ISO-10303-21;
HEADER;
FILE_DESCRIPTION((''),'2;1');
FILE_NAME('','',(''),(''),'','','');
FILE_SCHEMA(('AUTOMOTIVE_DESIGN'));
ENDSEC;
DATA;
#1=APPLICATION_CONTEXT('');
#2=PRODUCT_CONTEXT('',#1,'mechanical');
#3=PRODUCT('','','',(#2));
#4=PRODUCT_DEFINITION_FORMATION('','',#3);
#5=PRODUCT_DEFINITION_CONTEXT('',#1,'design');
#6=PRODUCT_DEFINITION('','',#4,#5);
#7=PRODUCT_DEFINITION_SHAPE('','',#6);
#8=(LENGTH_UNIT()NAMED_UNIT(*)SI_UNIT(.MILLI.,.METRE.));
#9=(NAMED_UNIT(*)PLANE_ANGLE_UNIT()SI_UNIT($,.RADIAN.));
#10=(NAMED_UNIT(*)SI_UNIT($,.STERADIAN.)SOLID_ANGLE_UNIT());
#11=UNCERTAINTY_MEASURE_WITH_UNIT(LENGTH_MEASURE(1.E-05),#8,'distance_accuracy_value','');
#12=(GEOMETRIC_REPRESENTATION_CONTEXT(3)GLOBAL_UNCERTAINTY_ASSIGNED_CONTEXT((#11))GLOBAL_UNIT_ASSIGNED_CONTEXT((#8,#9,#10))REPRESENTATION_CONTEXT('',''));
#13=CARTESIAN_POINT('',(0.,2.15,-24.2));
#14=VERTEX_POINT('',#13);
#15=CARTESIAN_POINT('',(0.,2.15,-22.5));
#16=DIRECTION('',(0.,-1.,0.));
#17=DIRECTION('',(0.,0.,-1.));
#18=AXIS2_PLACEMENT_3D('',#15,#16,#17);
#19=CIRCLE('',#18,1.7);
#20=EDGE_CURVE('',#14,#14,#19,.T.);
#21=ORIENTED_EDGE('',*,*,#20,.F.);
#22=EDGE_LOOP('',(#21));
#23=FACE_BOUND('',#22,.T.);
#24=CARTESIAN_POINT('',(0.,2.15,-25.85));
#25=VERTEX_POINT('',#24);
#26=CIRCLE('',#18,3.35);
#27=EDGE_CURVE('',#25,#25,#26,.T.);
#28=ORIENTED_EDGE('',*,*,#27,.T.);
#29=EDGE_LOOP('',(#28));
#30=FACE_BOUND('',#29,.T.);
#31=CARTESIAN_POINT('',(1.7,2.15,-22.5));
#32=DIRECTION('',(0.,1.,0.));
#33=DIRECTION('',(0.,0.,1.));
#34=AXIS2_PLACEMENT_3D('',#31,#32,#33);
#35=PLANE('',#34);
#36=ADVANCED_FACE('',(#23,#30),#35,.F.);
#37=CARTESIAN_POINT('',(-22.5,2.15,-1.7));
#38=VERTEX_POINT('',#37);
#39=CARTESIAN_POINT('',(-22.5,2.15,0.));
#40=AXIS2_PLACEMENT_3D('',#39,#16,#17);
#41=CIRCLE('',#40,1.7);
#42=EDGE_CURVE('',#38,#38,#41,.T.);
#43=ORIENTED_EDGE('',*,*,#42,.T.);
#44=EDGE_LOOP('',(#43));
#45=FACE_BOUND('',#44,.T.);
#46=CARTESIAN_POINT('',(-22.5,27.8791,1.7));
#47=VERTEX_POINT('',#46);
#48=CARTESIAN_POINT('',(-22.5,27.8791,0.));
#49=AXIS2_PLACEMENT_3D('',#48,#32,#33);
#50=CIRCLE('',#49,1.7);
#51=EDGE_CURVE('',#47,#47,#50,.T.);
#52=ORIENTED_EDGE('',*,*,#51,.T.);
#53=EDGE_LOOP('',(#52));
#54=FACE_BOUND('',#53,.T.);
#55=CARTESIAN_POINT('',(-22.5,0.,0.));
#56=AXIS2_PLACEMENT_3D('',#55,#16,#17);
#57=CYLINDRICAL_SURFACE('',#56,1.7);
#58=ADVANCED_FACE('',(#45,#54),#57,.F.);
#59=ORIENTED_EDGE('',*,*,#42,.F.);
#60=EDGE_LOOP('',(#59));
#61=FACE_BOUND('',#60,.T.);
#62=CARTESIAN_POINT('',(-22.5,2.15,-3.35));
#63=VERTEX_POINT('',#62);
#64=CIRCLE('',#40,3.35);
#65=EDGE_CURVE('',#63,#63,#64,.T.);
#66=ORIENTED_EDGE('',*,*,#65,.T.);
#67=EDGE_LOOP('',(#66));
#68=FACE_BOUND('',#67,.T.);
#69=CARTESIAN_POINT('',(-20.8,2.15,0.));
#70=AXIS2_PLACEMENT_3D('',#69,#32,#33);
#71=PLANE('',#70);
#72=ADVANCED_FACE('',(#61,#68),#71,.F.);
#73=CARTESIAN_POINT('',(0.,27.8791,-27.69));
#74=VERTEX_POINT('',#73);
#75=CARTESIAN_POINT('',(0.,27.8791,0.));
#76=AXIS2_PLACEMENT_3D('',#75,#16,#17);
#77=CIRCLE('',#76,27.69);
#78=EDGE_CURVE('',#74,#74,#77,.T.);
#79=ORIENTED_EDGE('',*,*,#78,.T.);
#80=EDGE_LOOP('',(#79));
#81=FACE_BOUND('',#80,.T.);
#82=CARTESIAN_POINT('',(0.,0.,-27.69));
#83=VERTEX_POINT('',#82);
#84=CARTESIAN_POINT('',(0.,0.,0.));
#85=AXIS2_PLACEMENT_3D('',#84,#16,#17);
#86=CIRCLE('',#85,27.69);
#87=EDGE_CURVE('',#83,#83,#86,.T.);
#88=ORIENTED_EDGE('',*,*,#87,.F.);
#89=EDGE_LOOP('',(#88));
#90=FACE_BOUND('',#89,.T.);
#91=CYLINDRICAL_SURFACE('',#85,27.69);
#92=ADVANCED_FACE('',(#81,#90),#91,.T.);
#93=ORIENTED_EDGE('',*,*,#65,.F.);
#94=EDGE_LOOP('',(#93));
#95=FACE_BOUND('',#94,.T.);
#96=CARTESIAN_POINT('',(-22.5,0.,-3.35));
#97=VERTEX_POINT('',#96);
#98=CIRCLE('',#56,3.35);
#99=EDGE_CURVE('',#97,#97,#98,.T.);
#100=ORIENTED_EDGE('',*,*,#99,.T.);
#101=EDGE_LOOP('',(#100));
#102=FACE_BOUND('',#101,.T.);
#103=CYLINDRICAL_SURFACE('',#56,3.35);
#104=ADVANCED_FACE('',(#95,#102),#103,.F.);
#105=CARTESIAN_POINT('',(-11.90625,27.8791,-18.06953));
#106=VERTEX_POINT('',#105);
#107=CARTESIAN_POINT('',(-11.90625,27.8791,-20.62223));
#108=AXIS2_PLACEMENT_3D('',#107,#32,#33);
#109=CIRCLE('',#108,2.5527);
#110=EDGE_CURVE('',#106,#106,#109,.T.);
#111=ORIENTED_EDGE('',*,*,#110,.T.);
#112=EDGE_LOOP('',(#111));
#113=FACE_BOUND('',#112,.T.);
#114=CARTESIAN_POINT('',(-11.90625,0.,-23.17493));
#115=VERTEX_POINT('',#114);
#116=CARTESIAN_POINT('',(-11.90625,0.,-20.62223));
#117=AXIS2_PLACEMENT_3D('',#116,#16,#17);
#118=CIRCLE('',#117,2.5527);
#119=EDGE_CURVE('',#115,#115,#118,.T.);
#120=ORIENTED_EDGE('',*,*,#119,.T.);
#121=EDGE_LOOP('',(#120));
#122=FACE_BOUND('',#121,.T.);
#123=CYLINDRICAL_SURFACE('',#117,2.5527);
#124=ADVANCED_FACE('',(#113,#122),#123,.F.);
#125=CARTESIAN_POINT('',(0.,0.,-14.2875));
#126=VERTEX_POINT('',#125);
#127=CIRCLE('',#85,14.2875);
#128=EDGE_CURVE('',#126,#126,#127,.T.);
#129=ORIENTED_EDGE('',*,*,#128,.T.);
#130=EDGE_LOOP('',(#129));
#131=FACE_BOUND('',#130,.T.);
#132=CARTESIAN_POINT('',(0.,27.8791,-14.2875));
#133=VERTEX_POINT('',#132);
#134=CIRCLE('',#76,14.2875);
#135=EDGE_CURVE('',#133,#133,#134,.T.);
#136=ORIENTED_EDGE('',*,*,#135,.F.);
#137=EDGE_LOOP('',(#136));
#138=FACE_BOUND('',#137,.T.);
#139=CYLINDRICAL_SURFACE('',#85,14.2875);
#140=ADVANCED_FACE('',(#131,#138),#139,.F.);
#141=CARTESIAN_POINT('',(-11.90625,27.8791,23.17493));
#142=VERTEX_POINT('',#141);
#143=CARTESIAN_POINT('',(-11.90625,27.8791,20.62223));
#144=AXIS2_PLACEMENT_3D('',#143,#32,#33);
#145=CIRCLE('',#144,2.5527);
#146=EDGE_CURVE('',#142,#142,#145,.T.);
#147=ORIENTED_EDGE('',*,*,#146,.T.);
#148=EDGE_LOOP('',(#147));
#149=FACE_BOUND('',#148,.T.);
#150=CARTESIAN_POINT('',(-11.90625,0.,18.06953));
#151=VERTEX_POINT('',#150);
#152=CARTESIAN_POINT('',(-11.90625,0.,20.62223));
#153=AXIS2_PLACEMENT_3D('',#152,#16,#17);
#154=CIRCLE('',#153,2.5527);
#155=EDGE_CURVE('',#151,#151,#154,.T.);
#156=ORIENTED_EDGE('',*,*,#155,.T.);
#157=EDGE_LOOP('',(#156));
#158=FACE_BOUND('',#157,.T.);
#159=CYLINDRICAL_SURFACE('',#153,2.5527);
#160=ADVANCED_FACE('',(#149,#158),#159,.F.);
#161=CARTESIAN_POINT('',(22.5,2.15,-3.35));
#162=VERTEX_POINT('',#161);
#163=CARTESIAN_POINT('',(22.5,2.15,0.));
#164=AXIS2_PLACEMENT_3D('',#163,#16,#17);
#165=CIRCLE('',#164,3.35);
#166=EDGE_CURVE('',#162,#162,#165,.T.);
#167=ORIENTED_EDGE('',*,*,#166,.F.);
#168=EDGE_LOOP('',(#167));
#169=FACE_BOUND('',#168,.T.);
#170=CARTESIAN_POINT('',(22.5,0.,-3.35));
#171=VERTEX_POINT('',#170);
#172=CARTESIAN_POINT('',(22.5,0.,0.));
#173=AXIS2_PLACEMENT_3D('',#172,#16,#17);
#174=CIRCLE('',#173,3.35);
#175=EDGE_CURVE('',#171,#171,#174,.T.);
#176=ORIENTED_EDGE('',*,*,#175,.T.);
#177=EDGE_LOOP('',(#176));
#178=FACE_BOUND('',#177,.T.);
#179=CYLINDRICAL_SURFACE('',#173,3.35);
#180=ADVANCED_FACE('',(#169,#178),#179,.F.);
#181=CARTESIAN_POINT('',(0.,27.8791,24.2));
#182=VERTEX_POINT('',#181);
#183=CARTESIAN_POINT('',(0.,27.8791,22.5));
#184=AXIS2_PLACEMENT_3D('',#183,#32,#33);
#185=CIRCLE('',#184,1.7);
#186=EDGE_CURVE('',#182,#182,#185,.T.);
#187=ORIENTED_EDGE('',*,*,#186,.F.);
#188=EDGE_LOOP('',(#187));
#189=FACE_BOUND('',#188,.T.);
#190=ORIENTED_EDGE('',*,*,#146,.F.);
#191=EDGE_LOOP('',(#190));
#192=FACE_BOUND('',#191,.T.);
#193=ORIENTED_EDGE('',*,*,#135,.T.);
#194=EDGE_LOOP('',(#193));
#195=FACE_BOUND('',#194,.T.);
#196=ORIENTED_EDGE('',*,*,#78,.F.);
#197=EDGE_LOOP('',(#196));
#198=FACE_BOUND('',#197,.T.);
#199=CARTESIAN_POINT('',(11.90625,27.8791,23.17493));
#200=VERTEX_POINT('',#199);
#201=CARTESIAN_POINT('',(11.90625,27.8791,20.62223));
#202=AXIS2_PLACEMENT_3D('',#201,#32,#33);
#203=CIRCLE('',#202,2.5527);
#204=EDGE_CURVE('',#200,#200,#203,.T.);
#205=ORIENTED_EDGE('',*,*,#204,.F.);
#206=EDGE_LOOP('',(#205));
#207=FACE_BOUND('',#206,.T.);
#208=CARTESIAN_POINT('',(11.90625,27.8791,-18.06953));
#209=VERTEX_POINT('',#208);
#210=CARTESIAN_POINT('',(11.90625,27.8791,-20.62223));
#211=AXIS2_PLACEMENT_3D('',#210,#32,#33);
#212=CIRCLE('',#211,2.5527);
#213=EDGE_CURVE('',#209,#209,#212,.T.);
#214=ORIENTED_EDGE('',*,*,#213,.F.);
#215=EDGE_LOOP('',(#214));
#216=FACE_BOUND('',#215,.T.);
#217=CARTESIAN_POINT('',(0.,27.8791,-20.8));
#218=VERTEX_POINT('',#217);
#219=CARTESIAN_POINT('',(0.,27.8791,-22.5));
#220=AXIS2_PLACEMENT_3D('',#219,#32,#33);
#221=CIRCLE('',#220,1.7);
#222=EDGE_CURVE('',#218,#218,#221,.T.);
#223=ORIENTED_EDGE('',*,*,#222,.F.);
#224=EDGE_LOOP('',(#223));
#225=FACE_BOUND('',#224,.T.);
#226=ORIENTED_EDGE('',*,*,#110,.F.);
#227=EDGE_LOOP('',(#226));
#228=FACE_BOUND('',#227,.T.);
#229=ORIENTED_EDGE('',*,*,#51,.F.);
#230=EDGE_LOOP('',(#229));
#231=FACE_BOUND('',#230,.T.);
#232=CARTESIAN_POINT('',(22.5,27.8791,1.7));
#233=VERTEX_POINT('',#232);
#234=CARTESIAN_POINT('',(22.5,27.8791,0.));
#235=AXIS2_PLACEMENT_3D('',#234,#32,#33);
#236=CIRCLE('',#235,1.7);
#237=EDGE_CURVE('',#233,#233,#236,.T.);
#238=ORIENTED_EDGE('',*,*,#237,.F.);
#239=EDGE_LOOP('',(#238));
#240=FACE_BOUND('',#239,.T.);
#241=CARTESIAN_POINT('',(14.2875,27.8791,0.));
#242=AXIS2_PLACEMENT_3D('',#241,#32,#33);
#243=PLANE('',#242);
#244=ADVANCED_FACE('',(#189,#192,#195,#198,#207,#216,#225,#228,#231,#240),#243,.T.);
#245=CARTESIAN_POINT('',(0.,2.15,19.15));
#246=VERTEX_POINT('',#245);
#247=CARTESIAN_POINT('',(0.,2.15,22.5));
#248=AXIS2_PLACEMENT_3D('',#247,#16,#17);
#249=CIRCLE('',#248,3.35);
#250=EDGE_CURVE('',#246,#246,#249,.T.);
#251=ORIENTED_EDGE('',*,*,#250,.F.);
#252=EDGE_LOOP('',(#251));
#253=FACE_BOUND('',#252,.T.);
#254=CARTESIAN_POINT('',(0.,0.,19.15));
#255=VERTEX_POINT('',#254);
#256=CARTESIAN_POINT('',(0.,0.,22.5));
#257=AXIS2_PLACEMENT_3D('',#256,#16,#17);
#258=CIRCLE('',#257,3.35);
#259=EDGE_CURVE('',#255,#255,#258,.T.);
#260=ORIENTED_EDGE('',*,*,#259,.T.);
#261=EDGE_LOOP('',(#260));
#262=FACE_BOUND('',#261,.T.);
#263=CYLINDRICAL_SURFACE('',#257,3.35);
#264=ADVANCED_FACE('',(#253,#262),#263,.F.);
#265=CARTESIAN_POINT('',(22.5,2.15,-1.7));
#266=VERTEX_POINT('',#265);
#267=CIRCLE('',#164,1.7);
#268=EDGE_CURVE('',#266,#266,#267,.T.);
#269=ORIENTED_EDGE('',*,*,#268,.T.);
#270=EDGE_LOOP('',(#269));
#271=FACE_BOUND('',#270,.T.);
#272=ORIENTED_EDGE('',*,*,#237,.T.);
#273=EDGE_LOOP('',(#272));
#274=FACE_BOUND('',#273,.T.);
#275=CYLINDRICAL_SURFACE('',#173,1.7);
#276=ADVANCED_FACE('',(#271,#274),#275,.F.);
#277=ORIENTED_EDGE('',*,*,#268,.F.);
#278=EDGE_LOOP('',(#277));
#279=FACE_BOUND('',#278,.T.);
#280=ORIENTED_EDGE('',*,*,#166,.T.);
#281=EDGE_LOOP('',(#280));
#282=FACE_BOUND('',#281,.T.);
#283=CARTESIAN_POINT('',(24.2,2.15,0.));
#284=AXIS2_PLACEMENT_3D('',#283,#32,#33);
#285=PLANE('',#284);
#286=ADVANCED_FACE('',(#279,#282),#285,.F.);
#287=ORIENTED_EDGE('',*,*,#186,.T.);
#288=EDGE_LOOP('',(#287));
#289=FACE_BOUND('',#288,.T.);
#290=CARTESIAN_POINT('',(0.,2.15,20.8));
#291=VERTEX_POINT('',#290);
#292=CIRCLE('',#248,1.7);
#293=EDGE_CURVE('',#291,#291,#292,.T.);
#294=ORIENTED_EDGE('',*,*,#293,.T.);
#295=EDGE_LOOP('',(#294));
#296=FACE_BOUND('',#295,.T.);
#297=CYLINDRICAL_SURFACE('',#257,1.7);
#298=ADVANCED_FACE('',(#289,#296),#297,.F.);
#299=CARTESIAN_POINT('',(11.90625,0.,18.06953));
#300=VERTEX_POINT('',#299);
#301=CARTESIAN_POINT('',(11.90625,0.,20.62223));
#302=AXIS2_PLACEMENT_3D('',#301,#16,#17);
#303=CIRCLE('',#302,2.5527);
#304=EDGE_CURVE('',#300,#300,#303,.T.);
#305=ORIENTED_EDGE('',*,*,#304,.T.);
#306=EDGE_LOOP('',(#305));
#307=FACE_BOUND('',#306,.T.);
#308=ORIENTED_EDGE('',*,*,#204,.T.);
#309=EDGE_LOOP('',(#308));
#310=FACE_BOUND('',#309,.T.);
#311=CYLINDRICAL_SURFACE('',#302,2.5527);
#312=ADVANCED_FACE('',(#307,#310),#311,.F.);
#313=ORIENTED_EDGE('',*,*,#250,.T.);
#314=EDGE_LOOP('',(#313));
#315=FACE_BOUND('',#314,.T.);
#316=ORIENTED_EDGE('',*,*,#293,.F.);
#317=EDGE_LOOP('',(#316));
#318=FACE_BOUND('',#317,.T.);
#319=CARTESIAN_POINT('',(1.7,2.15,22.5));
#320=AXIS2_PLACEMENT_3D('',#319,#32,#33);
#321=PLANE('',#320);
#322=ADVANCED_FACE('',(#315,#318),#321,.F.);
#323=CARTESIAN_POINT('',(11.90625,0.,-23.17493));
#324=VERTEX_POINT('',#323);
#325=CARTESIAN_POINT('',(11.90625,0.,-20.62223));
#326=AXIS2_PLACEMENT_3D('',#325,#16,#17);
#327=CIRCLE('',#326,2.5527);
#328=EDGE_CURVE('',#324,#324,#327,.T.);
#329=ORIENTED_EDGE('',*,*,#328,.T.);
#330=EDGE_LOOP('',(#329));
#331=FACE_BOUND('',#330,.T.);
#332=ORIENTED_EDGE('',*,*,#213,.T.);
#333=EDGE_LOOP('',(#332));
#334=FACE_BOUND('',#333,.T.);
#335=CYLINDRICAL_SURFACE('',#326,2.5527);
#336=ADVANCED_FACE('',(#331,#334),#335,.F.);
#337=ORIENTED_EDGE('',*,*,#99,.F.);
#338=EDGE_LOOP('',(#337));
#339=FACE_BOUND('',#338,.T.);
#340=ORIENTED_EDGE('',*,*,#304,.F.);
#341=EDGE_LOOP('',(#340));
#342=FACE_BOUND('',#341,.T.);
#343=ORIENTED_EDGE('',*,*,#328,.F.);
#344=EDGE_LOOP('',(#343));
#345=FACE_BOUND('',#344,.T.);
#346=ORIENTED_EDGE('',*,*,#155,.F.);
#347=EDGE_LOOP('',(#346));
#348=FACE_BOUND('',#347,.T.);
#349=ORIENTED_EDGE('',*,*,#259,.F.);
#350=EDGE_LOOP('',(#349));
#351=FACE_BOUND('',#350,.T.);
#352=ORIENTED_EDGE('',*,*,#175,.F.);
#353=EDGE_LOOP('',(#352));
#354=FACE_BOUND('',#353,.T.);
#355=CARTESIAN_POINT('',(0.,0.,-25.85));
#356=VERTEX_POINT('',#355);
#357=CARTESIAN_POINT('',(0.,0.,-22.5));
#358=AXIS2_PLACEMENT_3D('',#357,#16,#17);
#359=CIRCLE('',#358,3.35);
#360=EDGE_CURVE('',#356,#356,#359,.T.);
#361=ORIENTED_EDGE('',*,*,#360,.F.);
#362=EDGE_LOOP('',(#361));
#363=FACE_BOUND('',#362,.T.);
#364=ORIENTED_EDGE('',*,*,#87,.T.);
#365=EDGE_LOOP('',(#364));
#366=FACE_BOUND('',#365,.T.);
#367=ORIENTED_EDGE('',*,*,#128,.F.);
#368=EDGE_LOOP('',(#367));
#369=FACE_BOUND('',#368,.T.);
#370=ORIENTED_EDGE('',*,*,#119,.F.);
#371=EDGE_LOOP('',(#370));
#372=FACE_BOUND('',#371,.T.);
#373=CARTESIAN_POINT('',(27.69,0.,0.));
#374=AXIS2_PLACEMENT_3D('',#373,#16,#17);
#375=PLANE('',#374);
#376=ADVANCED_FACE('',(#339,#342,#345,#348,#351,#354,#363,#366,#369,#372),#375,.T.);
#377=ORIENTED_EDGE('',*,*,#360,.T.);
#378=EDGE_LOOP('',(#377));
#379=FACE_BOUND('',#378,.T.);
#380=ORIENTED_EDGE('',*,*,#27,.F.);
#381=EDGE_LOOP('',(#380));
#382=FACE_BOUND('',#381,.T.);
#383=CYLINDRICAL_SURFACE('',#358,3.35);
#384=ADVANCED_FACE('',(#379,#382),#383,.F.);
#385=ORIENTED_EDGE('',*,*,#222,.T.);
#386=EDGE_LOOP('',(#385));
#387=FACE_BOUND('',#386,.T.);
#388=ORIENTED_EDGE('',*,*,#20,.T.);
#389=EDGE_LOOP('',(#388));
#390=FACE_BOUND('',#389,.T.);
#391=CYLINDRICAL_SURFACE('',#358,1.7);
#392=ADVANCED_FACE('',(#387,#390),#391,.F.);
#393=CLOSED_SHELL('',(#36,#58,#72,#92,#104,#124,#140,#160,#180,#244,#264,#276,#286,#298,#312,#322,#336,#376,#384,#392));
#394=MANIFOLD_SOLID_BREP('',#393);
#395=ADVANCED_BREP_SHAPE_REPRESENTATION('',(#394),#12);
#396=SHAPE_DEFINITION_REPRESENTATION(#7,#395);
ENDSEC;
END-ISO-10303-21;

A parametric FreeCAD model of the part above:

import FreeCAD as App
import Part
import Sketcher

V = App.Vector

doc = App.newDocument("Part")
body = doc.addObject("PartDesign::Body", "Body")

sketch1 = body.newObject("Sketcher::SketchObject", "Sketch")
sketch1.AttachmentSupport = (doc.getObject("XY_Plane"), [""])
sketch1.MapMode = "FlatFace"
sketch1.addGeometry([
    Part.LineSegment(V(14, 28, 0), V(14, 0, 0)),
    Part.LineSegment(V(14, 0, 0), V(28, 0, 0)),
    Part.LineSegment(V(28, 0, 0), V(28, 28, 0)),
    Part.LineSegment(V(28, 28, 0), V(14, 28, 0)),
], False)
sketch1.addConstraint([
    Sketcher.Constraint("Coincident", 0, 2, 1, 1),
    Sketcher.Constraint("Coincident", 1, 2, 2, 1),
    Sketcher.Constraint("Coincident", 2, 2, 3, 1),
    Sketcher.Constraint("Coincident", 3, 2, 0, 1),
    Sketcher.Constraint("Vertical", 0),
    Sketcher.Constraint("Horizontal", 1),
    Sketcher.Constraint("Vertical", 2),
    Sketcher.Constraint("Horizontal", 3),
    Sketcher.Constraint("PointOnObject", 0, 2, -1),
    Sketcher.Constraint("DistanceX", -1, 1, 1, 2, 27.69),
    Sketcher.Constraint("DistanceX", 1, 1, 1, 2, 13.4025),
    Sketcher.Constraint("DistanceY", 0, 2, 0, 1, 27.8791),
])
revolution = body.newObject("PartDesign::Revolution", "Revolution")
revolution.Profile = sketch1
revolution.ReferenceAxis = (sketch1, ["V_Axis"])
revolution.Angle = 360

sketch2 = body.newObject("Sketcher::SketchObject", "Sketch001")
sketch2.AttachmentSupport = (doc.getObject("XZ_Plane"), [""])
sketch2.MapMode = "FlatFace"
sketch2.addGeometry([
    Part.Circle(V(0, 22.5, 0), V(0, 0, 1), 1.7),
    Part.Circle(V(0, -22.5, 0), V(0, 0, 1), 1.7),
    Part.Circle(V(22.5, 0, 0), V(0, 0, 1), 1.7),
    Part.Circle(V(-22.5, 0, 0), V(0, 0, 1), 1.7),
], False)
sketch2.addConstraint([
    Sketcher.Constraint("Equal", 0, 1),
    Sketcher.Constraint("Equal", 1, 2),
    Sketcher.Constraint("Equal", 2, 3),
    Sketcher.Constraint("Symmetric", 0, 3, 1, 3, -1, 1),
    Sketcher.Constraint("Symmetric", 2, 3, 3, 3, -1, 1),
    Sketcher.Constraint("PointOnObject", 0, 3, -2),
    Sketcher.Constraint("PointOnObject", 2, 3, -1),
    Sketcher.Constraint("Diameter", 0, 3.4),
    Sketcher.Constraint("DistanceY", 1, 3, 0, 3, 45.0),
    Sketcher.Constraint("DistanceX", 3, 3, 2, 3, 45.0),
])
doc.recompute()
hole = body.newObject("PartDesign::Hole", "Hole")
hole.Profile = sketch2
hole.ThreadType = "None"
hole.Diameter = 3.4
hole.DepthType = "ThroughAll"
hole.HoleCutType = "Counterbore"
hole.HoleCutDiameter = 6.7
hole.HoleCutDepth = 2.15

sketch3 = body.newObject("Sketcher::SketchObject", "Sketch002")
sketch3.AttachmentSupport = (doc.getObject("XZ_Plane"), [""])
sketch3.MapMode = "FlatFace"
sketch3.addGeometry([
    Part.Circle(V(-11.9, 20.6, 0), V(0, 0, 1), 2.6),
    Part.Circle(V(-11.9, -20.6, 0), V(0, 0, 1), 2.6),
    Part.Circle(V(11.9, -20.6, 0), V(0, 0, 1), 2.6),
    Part.Circle(V(11.9, 20.6, 0), V(0, 0, 1), 2.6),
], False)
sketch3.addConstraint([
    Sketcher.Constraint("Equal", 0, 1),
    Sketcher.Constraint("Equal", 1, 2),
    Sketcher.Constraint("Equal", 2, 3),
    Sketcher.Constraint("Symmetric", 0, 3, 2, 3, -1, 1),
    Sketcher.Constraint("Symmetric", 1, 3, 3, 3, -1, 1),
    Sketcher.Constraint("Symmetric", 1, 3, 2, 3, -2),
    Sketcher.Constraint("Diameter", 0, 5.1054),
    Sketcher.Constraint("DistanceX", 1, 3, 2, 3, 23.8125),
    Sketcher.Constraint("DistanceY", -1, 1, 0, 3, 20.62223),
])
doc.recompute()
hole2 = body.newObject("PartDesign::Hole", "Hole001")
hole2.Profile = sketch3
hole2.ThreadType = "None"
hole2.Diameter = 5.1054
hole2.DepthType = "ThroughAll"

doc.recompute()
